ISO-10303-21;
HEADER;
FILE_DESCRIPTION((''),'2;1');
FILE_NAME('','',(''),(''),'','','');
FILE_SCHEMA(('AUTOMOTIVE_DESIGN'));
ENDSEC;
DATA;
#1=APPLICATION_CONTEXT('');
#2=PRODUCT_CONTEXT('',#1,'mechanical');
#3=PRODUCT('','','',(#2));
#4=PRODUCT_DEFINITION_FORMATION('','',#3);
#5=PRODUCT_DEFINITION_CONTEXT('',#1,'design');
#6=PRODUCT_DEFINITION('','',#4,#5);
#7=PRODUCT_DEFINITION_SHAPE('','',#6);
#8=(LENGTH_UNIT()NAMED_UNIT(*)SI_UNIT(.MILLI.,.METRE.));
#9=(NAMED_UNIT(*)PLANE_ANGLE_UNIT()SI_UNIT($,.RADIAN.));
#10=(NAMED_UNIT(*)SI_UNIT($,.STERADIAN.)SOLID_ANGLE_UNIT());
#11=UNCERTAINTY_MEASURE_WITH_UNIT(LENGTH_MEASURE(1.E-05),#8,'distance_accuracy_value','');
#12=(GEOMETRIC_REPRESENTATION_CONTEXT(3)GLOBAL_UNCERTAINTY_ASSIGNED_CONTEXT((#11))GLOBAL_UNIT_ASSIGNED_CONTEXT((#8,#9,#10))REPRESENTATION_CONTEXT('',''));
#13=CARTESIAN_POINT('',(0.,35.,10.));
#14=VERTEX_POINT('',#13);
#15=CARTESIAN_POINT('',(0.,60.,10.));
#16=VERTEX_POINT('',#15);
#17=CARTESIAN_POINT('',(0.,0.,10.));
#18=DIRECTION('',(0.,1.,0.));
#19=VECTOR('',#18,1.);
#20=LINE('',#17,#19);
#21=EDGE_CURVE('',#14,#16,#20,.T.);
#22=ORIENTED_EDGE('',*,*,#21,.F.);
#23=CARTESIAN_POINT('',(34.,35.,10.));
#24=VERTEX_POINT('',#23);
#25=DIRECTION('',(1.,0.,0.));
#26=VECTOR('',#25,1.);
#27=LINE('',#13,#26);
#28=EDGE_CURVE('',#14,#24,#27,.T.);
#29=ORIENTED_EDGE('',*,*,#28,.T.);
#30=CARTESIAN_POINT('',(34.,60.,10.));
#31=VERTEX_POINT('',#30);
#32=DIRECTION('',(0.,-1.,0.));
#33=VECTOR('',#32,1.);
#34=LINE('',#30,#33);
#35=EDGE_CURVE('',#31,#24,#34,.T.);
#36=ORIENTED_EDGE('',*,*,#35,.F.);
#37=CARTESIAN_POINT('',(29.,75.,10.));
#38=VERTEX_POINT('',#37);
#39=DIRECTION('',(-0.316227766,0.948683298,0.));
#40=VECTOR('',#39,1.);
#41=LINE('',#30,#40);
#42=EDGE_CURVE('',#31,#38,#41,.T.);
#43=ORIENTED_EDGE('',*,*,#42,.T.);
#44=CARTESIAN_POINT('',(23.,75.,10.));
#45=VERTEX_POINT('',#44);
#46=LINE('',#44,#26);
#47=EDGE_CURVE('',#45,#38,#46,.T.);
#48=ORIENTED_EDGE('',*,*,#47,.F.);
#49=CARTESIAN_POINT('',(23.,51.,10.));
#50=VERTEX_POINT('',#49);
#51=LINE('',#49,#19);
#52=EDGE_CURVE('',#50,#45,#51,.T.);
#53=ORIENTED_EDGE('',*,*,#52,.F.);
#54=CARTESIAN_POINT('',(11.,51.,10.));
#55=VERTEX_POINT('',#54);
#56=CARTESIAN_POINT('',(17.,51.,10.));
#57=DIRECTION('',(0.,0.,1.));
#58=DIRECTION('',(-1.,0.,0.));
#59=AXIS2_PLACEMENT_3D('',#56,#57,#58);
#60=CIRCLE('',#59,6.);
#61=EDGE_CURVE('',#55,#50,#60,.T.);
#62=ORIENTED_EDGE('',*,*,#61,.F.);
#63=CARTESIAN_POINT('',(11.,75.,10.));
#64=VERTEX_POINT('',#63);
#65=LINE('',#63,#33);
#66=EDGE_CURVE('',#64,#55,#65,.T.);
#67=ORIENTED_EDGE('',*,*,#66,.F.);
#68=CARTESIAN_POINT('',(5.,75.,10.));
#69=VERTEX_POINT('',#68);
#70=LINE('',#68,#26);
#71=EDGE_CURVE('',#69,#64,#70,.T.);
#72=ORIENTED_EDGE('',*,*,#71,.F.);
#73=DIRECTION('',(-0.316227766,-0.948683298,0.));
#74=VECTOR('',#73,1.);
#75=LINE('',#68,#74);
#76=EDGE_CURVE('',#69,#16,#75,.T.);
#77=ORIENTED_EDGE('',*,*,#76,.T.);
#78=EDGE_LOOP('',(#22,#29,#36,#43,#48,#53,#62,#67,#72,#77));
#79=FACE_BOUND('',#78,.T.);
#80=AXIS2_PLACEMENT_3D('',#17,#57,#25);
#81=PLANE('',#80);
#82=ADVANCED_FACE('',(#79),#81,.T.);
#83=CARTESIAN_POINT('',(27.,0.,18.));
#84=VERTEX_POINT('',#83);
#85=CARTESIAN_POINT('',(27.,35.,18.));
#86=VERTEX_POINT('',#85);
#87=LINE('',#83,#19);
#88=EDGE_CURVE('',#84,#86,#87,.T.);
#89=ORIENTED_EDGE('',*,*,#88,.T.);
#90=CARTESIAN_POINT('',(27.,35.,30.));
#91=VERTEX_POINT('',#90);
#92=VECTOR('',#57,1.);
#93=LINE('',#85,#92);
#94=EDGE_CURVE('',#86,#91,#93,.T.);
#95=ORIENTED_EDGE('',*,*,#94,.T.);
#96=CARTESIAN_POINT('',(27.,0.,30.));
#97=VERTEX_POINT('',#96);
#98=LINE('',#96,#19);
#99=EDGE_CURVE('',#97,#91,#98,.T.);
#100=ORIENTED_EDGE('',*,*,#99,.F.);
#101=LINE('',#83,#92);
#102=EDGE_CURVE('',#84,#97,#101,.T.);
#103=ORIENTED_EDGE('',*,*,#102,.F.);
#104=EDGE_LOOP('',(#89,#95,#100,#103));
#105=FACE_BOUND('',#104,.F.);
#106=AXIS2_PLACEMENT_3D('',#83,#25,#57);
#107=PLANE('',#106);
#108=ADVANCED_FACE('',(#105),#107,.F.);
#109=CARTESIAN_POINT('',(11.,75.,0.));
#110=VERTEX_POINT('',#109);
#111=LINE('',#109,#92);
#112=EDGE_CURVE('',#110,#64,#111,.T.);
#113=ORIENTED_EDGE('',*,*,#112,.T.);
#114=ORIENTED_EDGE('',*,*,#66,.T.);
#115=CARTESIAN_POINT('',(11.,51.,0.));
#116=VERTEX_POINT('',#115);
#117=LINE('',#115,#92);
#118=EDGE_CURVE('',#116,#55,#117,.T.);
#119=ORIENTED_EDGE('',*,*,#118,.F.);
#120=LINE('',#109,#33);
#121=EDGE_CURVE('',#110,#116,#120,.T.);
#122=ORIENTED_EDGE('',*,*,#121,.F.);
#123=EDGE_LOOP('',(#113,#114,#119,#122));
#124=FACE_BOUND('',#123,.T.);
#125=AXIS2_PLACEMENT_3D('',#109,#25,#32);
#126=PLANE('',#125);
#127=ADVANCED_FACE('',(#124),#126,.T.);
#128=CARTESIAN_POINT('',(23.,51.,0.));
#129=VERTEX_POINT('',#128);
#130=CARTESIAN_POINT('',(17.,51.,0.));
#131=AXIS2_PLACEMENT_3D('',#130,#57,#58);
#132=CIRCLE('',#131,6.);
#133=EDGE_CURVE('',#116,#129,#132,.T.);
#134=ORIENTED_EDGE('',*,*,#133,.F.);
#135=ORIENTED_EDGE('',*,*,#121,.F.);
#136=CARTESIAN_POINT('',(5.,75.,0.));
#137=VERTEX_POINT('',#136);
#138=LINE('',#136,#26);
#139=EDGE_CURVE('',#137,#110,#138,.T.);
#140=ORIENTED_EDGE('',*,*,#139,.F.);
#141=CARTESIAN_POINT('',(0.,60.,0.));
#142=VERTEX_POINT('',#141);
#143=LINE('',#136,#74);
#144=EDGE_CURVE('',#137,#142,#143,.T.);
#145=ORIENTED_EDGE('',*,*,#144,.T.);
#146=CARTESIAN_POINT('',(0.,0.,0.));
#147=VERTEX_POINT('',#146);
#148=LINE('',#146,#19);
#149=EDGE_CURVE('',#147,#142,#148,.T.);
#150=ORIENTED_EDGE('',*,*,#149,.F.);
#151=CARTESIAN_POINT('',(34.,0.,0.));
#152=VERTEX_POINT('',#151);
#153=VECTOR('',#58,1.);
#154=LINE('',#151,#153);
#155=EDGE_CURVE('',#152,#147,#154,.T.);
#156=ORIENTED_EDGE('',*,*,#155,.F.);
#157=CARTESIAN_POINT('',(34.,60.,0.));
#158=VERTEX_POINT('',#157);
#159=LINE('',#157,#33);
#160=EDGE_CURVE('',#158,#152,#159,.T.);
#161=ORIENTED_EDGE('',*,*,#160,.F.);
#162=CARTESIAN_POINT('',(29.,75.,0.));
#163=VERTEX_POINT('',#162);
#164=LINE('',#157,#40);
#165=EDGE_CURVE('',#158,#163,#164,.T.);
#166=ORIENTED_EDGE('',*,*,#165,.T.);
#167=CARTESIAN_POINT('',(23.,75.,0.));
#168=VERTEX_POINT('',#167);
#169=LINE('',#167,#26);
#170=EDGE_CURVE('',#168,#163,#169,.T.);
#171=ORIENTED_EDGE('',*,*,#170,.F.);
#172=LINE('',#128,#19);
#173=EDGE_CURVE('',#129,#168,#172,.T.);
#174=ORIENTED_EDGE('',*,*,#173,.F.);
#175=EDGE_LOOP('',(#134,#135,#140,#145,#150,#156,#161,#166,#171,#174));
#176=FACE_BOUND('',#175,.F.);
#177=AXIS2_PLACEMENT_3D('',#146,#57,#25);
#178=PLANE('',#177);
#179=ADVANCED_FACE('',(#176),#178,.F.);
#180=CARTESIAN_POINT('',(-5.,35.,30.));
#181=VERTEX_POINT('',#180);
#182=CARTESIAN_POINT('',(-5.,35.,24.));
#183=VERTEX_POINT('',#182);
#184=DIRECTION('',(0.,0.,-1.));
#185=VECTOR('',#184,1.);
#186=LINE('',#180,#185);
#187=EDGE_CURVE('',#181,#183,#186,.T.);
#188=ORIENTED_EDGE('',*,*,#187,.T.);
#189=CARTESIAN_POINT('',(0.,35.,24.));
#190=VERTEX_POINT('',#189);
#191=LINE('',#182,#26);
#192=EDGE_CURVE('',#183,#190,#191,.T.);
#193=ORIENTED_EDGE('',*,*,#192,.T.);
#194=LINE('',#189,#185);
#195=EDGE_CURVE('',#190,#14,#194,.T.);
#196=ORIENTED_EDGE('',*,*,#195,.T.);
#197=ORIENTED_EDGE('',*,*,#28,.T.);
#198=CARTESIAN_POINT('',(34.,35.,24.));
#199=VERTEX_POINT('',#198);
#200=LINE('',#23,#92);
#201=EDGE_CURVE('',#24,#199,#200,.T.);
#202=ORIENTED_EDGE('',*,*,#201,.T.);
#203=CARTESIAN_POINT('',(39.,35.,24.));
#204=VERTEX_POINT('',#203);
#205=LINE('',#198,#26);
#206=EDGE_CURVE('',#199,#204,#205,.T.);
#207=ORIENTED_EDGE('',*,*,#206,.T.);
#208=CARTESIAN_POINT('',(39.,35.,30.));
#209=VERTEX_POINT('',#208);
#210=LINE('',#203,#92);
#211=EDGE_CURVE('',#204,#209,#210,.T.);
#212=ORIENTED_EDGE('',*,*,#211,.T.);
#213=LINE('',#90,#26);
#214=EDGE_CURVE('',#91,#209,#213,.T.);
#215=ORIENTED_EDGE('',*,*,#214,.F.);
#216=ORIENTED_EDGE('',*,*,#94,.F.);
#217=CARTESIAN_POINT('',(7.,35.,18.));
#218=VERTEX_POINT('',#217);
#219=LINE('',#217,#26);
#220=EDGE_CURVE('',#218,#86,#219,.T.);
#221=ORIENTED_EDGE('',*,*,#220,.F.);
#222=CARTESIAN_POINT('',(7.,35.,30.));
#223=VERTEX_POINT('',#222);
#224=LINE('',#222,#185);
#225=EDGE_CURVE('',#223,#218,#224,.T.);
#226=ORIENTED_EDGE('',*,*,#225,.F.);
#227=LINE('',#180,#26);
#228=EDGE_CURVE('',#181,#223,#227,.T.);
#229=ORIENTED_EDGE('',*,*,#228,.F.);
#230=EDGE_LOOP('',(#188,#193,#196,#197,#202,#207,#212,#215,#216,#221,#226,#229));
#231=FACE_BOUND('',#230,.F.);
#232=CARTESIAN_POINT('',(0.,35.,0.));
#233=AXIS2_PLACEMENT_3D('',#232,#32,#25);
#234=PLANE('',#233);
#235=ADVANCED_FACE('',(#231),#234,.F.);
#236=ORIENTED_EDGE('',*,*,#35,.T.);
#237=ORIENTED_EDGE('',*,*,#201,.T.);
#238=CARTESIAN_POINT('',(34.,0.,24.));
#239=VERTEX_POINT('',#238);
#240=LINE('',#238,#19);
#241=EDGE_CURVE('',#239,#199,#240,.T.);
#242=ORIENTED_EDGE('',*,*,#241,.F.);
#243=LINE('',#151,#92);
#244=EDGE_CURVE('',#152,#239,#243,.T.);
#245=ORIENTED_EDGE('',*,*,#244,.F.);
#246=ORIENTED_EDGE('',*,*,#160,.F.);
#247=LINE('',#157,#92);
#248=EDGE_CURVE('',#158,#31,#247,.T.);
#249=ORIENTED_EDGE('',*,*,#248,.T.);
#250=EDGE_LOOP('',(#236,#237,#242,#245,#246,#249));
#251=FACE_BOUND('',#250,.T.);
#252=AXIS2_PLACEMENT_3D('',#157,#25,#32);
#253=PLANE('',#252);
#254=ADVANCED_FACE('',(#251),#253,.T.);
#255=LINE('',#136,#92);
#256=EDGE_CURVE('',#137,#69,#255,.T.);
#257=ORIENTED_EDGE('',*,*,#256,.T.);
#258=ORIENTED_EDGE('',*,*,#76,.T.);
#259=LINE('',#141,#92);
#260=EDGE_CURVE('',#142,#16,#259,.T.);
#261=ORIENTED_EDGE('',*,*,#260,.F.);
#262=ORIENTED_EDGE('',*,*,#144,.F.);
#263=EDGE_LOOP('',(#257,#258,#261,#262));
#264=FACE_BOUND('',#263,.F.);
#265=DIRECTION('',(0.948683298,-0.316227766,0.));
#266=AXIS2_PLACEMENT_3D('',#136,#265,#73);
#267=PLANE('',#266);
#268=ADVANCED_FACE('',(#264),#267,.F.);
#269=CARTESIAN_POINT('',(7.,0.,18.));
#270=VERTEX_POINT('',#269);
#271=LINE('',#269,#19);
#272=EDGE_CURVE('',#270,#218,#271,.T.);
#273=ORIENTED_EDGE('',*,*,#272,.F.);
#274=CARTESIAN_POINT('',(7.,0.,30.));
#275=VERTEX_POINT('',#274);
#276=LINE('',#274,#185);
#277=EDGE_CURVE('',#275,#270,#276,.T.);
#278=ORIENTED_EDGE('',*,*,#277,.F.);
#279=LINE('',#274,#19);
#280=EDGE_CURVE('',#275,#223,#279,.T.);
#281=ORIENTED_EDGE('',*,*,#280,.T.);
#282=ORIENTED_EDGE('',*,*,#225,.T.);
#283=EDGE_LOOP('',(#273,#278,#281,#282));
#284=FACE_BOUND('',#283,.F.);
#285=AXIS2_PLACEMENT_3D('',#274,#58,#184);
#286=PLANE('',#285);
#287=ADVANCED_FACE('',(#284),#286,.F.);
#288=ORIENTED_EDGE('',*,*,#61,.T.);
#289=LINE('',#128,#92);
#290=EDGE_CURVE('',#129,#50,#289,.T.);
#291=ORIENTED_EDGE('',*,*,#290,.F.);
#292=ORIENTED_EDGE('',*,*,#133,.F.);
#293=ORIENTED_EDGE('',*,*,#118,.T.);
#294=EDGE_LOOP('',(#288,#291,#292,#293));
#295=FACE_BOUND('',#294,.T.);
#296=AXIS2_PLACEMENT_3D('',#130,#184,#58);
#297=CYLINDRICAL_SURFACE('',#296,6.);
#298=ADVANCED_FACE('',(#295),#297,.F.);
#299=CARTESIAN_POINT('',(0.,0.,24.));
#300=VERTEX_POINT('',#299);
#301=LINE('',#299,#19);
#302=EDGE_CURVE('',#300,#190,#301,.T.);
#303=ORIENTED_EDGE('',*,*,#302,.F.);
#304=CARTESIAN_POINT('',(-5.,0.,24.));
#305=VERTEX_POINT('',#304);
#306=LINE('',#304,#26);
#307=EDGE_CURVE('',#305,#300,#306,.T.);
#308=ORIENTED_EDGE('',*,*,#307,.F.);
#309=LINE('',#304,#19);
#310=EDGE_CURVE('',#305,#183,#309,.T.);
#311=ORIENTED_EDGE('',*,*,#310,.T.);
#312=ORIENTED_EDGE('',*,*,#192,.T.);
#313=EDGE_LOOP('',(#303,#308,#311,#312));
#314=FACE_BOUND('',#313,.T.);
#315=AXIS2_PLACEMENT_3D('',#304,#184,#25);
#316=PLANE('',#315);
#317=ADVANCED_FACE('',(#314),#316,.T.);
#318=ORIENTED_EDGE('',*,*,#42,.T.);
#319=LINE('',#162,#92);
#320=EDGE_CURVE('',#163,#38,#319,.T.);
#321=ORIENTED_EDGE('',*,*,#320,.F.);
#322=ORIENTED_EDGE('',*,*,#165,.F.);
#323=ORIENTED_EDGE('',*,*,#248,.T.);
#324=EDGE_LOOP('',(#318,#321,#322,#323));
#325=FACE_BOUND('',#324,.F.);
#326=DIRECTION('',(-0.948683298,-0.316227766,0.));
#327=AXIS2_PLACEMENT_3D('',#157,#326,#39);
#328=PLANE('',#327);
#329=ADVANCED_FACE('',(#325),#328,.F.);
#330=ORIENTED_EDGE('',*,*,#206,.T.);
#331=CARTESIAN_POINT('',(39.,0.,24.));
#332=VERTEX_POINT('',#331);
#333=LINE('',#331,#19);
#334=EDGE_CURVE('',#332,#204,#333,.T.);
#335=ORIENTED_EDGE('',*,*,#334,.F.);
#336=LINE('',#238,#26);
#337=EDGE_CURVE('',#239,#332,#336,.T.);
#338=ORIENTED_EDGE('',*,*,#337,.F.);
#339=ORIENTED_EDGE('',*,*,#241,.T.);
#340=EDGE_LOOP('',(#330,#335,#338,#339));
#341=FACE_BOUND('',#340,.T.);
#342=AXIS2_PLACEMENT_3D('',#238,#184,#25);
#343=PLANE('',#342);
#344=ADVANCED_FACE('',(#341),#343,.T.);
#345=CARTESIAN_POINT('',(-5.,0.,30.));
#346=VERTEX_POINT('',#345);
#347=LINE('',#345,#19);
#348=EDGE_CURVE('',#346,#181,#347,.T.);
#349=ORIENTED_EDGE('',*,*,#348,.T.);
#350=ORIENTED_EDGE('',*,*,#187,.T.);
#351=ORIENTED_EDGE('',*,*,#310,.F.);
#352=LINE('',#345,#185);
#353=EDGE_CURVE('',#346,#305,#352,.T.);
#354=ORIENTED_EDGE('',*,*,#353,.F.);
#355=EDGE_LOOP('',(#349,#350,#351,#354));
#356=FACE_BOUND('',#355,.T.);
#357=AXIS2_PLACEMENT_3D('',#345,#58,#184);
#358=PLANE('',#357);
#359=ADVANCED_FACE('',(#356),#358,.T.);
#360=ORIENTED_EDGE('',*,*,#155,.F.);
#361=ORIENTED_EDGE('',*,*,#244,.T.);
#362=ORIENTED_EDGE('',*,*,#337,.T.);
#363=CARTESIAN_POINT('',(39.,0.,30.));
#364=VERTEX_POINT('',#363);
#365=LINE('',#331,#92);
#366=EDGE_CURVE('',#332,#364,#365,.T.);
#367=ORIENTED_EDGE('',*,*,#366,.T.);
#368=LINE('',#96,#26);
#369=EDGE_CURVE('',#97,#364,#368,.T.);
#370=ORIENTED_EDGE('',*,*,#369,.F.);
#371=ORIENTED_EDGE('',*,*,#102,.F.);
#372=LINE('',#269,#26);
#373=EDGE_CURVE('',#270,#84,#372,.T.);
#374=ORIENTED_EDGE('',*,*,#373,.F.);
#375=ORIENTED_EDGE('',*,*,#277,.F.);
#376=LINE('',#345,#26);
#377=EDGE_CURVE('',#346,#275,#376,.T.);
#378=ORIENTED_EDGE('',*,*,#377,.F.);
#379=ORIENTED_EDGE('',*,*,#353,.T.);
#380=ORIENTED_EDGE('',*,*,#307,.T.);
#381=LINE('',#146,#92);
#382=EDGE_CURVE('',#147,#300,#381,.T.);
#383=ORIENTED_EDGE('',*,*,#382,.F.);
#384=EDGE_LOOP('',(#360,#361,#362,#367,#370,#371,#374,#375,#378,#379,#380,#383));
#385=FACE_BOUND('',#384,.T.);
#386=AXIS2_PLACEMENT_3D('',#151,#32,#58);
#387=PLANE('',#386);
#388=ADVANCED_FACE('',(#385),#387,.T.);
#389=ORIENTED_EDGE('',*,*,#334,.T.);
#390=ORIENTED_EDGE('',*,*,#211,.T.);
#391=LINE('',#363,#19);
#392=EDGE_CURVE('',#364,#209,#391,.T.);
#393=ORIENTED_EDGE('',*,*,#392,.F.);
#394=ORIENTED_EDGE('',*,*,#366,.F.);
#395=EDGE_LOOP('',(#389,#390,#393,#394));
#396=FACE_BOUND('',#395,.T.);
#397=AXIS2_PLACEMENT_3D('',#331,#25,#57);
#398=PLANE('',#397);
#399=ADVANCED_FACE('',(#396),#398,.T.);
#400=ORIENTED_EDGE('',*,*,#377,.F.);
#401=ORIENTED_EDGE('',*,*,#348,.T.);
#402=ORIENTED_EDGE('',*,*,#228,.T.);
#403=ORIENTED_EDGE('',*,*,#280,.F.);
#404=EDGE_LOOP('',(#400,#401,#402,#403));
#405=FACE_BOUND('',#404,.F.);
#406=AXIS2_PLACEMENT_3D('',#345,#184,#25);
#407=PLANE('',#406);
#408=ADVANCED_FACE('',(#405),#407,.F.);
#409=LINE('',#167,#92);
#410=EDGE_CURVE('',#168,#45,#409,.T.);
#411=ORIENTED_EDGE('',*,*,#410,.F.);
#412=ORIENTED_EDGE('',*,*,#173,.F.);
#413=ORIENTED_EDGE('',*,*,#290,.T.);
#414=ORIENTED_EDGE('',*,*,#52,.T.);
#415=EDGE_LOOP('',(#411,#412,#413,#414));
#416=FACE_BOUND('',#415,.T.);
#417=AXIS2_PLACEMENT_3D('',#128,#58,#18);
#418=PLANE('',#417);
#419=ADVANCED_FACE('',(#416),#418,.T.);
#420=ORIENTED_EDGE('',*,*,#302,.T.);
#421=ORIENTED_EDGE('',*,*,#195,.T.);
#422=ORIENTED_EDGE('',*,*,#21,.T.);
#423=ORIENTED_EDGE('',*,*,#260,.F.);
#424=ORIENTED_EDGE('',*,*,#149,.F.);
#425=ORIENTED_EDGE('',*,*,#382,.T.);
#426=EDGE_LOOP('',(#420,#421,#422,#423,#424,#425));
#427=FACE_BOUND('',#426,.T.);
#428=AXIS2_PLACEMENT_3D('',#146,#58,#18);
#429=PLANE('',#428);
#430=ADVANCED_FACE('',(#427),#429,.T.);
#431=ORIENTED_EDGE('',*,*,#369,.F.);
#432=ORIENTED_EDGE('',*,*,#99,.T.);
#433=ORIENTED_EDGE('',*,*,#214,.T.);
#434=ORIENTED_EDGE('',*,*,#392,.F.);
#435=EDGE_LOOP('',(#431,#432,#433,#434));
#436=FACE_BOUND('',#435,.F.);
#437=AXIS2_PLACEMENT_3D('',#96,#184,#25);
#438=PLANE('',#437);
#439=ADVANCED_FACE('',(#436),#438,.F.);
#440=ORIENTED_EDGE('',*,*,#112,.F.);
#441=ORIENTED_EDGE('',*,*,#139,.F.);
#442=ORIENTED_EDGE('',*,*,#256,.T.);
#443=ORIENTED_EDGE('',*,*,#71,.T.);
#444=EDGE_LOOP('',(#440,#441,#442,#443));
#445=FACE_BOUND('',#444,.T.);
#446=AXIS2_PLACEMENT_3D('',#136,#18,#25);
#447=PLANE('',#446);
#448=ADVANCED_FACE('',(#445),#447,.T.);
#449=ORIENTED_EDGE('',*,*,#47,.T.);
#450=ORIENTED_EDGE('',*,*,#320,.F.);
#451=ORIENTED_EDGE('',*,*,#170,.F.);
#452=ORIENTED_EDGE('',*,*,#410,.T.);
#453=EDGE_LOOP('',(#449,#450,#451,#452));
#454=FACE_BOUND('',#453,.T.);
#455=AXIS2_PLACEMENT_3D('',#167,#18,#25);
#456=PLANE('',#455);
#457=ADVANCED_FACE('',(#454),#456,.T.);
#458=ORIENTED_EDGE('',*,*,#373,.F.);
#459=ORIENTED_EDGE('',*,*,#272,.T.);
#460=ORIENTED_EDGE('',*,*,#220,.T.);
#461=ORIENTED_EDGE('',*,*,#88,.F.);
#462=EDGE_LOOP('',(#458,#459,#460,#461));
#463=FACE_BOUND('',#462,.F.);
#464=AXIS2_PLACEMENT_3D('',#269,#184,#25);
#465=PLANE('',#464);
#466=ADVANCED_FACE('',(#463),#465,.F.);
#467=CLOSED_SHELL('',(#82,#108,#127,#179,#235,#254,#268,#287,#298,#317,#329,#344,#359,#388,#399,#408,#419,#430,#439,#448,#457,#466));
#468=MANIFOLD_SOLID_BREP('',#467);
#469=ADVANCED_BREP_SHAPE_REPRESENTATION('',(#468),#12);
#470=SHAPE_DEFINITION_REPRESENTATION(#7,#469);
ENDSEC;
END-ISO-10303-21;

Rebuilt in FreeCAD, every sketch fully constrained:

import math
import FreeCAD as App
import Part
import Sketcher
from FreeCAD import Vector


def add_polygon(sketch, points):
    """Adds a closed chain of lines whose ends are joined by coincident constraints."""
    first, n = sketch.GeometryCount, len(points)
    for a, b in zip(points, points[1:] + points[:1]):
        sketch.addGeometry(Part.LineSegment(App.Vector(*a, 0), App.Vector(*b, 0)), False)
    for i in range(n):
        sketch.addConstraint(Sketcher.Constraint("Coincident", first + i, 2, first + (i + 1) % n, 1))

doc = App.newDocument("Part")
body = doc.addObject("PartDesign::Body", "Body")

sketch1 = body.newObject("Sketcher::SketchObject", "Sketch")
sketch1.AttachmentSupport = (doc.getObject("XY_Plane"), [""])
sketch1.MapMode = "FlatFace"
sketch1.addGeometry([
    Part.LineSegment(Vector(0, 60, 0), Vector(0, 0, 0)),
    Part.LineSegment(Vector(0, 0, 0), Vector(34, 0, 0)),
    Part.LineSegment(Vector(34, 0, 0), Vector(34, 60, 0)),
    Part.LineSegment(Vector(34, 60, 0), Vector(29, 75, 0)),
    Part.LineSegment(Vector(29, 75, 0), Vector(23, 75, 0)),
    Part.LineSegment(Vector(23, 75, 0), Vector(23, 51, 0)),
    Part.ArcOfCircle(Part.Circle(Vector(17, 51, 0), Vector(0, 0, 1), 6), math.radians(180), math.radians(360)),
    Part.LineSegment(Vector(11, 51, 0), Vector(11, 75, 0)),
    Part.LineSegment(Vector(11, 75, 0), Vector(5, 75, 0)),
    Part.LineSegment(Vector(5, 75, 0), Vector(0, 60, 0)),
], False)
sketch1.addConstraint([
    Sketcher.Constraint("Coincident", 0, 2, 1, 1),
    Sketcher.Constraint("Coincident", 1, 2, 2, 1),
    Sketcher.Constraint("Coincident", 2, 2, 3, 1),
    Sketcher.Constraint("Coincident", 3, 2, 4, 1),
    Sketcher.Constraint("Coincident", 4, 2, 5, 1),
    Sketcher.Constraint("Tangent", 5, 2, 6, 2),
    Sketcher.Constraint("Tangent", 6, 1, 7, 1),
    Sketcher.Constraint("Coincident", 7, 2, 8, 1),
    Sketcher.Constraint("Coincident", 8, 2, 9, 1),
    Sketcher.Constraint("Coincident", 9, 2, 0, 1),
    Sketcher.Constraint("Vertical", 0),
    Sketcher.Constraint("Horizontal", 1),
    Sketcher.Constraint("Vertical", 2),
    Sketcher.Constraint("Horizontal", 4),
    Sketcher.Constraint("Vertical", 5),
    Sketcher.Constraint("Vertical", 7),
    Sketcher.Constraint("Horizontal", 8),
    Sketcher.Constraint("Coincident", 0, 2, -1, 1),
    Sketcher.Constraint("Horizontal", 4, 2, 7, 2),
    Sketcher.Constraint("Horizontal", 2, 2, 9, 2),
    Sketcher.Constraint("Equal", 4, 8),
    Sketcher.Constraint("Equal", 3, 9),
    Sketcher.Constraint("Radius", 6, 6.0),
    Sketcher.Constraint("DistanceX", 4, 2, 4, 1, 6.0),
    Sketcher.Constraint("DistanceY", 0, 2, 0, 1, 60.0),
    Sketcher.Constraint("DistanceY", 5, 2, 5, 1, 24.0),
    Sketcher.Constraint("DistanceX", 1, 1, 1, 2, 34.0),
    Sketcher.Constraint("DistanceY", -1, 1, 6, 3, 51.0),
])
pad1 = body.newObject("PartDesign::Pad", "Pad")
pad1.Profile = sketch1
pad1.Length = 10

sketch2 = body.newObject("Sketcher::SketchObject", "Sketch001")
sketch2.AttachmentSupport = (doc.getObject("XZ_Plane"), [""])
sketch2.MapMode = "FlatFace"
add_polygon(sketch2, [(0, 10), (34, 10), (34, 24), (39, 24), (39, 30), (27, 30), (27, 18), (7, 18), (7, 30), (-5, 30), (-5, 24), (0, 24)])
sketch2.addConstraint([
    Sketcher.Constraint("Horizontal", 0),
    Sketcher.Constraint("Vertical", 1),
    Sketcher.Constraint("Horizontal", 2),
    Sketcher.Constraint("Vertical", 3),
    Sketcher.Constraint("Horizontal", 4),
    Sketcher.Constraint("Vertical", 5),
    Sketcher.Constraint("Horizontal", 6),
    Sketcher.Constraint("Vertical", 7),
    Sketcher.Constraint("Horizontal", 8),
    Sketcher.Constraint("Vertical", 9),
    Sketcher.Constraint("Horizontal", 10),
    Sketcher.Constraint("Vertical", 11),
    Sketcher.Constraint("PointOnObject", 10, 2, -2),
    Sketcher.Constraint("Horizontal", 4, 2, 7, 2),
    Sketcher.Constraint("Horizontal", 2, 2, 9, 2),
    Sketcher.Constraint("Equal", 4, 8),
    Sketcher.Constraint("Equal", 2, 10),
    Sketcher.Constraint("Equal", 8, 5),
    Sketcher.Constraint("DistanceX", 2, 1, 2, 2, 5.0),
    Sketcher.Constraint("DistanceX", 4, 2, 4, 1, 12.0),
    Sketcher.Constraint("DistanceX", 6, 2, 6, 1, 20.0),
    Sketcher.Constraint("DistanceY", 1, 1, 1, 2, 14.0),
    Sketcher.Constraint("DistanceY", 3, 1, 3, 2, 6.0),
    Sketcher.Constraint("DistanceY", -1, 1, 0, 2, 10.0),
])
pad2 = body.newObject("PartDesign::Pad", "Pad001")
pad2.Profile = sketch2
pad2.Length = 35
pad2.Reversed = True

doc.recompute()
